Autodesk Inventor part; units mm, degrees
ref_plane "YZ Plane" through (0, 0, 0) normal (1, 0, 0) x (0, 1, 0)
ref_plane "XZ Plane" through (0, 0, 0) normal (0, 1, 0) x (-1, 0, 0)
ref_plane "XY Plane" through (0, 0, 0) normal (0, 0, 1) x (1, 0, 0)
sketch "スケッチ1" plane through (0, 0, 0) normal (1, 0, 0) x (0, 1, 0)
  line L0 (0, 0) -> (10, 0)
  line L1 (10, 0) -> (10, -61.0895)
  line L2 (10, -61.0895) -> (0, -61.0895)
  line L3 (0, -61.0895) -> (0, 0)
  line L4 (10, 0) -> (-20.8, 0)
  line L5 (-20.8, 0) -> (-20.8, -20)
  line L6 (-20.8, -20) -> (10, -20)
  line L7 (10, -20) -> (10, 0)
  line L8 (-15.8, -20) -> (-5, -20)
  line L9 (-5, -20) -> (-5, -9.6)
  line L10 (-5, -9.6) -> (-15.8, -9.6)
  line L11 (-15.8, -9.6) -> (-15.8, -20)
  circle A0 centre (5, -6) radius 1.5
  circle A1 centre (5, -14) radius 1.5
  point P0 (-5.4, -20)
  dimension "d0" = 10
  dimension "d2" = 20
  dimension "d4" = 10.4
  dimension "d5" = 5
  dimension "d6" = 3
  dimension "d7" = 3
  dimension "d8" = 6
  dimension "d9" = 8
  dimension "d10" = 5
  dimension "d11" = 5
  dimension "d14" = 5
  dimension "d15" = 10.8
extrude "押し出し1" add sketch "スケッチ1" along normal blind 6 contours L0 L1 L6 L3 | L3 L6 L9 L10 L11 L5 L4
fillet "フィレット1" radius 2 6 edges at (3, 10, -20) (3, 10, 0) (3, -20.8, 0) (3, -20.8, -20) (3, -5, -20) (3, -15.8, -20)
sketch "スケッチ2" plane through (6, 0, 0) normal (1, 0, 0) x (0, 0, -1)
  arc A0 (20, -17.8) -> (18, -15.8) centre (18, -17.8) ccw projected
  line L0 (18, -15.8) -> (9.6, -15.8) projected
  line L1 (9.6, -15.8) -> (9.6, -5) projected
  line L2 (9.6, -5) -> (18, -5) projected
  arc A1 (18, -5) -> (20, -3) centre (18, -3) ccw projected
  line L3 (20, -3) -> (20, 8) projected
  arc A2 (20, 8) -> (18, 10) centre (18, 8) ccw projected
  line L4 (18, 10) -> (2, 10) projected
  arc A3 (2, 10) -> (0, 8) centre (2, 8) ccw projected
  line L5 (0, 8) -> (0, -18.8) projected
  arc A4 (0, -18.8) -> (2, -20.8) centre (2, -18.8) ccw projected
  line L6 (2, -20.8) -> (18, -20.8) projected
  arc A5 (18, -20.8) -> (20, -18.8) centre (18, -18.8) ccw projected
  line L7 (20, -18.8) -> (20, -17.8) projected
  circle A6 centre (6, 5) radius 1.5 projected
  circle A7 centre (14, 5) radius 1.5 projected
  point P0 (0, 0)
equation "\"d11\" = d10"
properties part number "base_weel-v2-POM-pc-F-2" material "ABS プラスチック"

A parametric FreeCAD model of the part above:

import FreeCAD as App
import Part
import Sketcher
from FreeCAD import Vector
Q = App.Units.Quantity


def edges_at(feature, points):
    """Names of the edges that pass closest to the given points."""
    edges = feature.Shape.Edges
    near = lambda p: min(range(len(edges)), key=lambda i: edges[i].distToShape(Part.Vertex(*p))[0])
    return sorted({f"Edge{near(p) + 1}" for p in points})

doc = App.newDocument("Part")
body = doc.addObject("PartDesign::Body", "Body")

sketch1 = doc.addObject("Sketcher::SketchObject", "Sketch")
body.addObject(sketch1)
sketch1.AttachmentSupport = (doc.YZ_Plane, [""])
sketch1.MapMode = "FlatFace"
sketch1.addGeometry([
    Part.LineSegment(Vector(10, 0, 0), Vector(-20.8, 0, 0)),
    Part.LineSegment(Vector(-20.8, 0, 0), Vector(-20.8, -20, 0)),
    Part.LineSegment(Vector(-20.8, -20, 0), Vector(-15.8, -20, 0)),
    Part.LineSegment(Vector(-15.8, -20, 0), Vector(-15.8, -9.6, 0)),
    Part.LineSegment(Vector(-15.8, -9.6, 0), Vector(-5, -9.6, 0)),
    Part.LineSegment(Vector(-5, -9.6, 0), Vector(-5, -20, 0)),
    Part.LineSegment(Vector(-5, -20, 0), Vector(10, -20, 0)),
    Part.LineSegment(Vector(10, -20, 0), Vector(10, 0, 0)),
    Part.Circle(Vector(5, -14, 0), Vector(0, 0, 1), 1.5),
    Part.Circle(Vector(5, -6, 0), Vector(0, 0, 1), 1.5),
], False)
sketch1.addConstraint([
    Sketcher.Constraint("Coincident", 0, 2, 1, 1),
    Sketcher.Constraint("Coincident", 1, 2, 2, 1),
    Sketcher.Constraint("Coincident", 2, 2, 3, 1),
    Sketcher.Constraint("Coincident", 3, 2, 4, 1),
    Sketcher.Constraint("Coincident", 4, 2, 5, 1),
    Sketcher.Constraint("Coincident", 5, 2, 6, 1),
    Sketcher.Constraint("Coincident", 6, 2, 7, 1),
    Sketcher.Constraint("Coincident", 7, 2, 0, 1),
    Sketcher.Constraint("Horizontal", 0),
    Sketcher.Constraint("Vertical", 1),
    Sketcher.Constraint("Horizontal", 2),
    Sketcher.Constraint("Vertical", 3),
    Sketcher.Constraint("Horizontal", 4),
    Sketcher.Constraint("Vertical", 5),
    Sketcher.Constraint("Horizontal", 6),
    Sketcher.Constraint("Vertical", 7),
    Sketcher.Constraint("Equal", 8, 9),
    Sketcher.Constraint("PointOnObject", 0, 2, -1),
    Sketcher.Constraint("Horizontal", 2, 2, 5, 2),
    Sketcher.Constraint("Vertical", 8, 3, 9, 3),
    Sketcher.Constraint("Diameter", 8, Q("3 mm")),
    Sketcher.Constraint("DistanceX", 2, 1, 2, 2, Q("5 mm")),
    Sketcher.Constraint("DistanceY", 1, 2, 1, 1, Q("20 mm")),
    Sketcher.Constraint("DistanceX", 4, 1, 4, 2, Q("10.8 mm")),
    Sketcher.Constraint("DistanceY", 3, 1, 3, 2, Q("10.4 mm")),
    Sketcher.Constraint("DistanceX", -1, 1, 8, 3, Q("5 mm")),
    Sketcher.Constraint("DistanceY", 9, 3, -1, 1, Q("6 mm")),
    Sketcher.Constraint("DistanceX", 4, 2, -1, 1, Q("5 mm")),
    Sketcher.Constraint("DistanceX", -1, 1, 6, 2, Q("10 mm")),
    Sketcher.Constraint("DistanceY", 8, 3, 9, 3, Q("8 mm")),
])
pad1 = doc.addObject("PartDesign::Pad", "Pad")
body.addObject(pad1)
pad1.Profile = sketch1
pad1.Length = 6
doc.recompute()

fillet = doc.addObject("PartDesign::Fillet", "Fillet")
body.addObject(fillet)
fillet.Base = (pad1, edges_at(pad1, [
    (3, 10, -20),
    (3, 10, 0),
    (3, -20.8, 0),
    (3, -20.8, -20),
    (3, -5, -20),
    (3, -15.8, -20),
]))
fillet.Radius = 2

doc.recompute()
